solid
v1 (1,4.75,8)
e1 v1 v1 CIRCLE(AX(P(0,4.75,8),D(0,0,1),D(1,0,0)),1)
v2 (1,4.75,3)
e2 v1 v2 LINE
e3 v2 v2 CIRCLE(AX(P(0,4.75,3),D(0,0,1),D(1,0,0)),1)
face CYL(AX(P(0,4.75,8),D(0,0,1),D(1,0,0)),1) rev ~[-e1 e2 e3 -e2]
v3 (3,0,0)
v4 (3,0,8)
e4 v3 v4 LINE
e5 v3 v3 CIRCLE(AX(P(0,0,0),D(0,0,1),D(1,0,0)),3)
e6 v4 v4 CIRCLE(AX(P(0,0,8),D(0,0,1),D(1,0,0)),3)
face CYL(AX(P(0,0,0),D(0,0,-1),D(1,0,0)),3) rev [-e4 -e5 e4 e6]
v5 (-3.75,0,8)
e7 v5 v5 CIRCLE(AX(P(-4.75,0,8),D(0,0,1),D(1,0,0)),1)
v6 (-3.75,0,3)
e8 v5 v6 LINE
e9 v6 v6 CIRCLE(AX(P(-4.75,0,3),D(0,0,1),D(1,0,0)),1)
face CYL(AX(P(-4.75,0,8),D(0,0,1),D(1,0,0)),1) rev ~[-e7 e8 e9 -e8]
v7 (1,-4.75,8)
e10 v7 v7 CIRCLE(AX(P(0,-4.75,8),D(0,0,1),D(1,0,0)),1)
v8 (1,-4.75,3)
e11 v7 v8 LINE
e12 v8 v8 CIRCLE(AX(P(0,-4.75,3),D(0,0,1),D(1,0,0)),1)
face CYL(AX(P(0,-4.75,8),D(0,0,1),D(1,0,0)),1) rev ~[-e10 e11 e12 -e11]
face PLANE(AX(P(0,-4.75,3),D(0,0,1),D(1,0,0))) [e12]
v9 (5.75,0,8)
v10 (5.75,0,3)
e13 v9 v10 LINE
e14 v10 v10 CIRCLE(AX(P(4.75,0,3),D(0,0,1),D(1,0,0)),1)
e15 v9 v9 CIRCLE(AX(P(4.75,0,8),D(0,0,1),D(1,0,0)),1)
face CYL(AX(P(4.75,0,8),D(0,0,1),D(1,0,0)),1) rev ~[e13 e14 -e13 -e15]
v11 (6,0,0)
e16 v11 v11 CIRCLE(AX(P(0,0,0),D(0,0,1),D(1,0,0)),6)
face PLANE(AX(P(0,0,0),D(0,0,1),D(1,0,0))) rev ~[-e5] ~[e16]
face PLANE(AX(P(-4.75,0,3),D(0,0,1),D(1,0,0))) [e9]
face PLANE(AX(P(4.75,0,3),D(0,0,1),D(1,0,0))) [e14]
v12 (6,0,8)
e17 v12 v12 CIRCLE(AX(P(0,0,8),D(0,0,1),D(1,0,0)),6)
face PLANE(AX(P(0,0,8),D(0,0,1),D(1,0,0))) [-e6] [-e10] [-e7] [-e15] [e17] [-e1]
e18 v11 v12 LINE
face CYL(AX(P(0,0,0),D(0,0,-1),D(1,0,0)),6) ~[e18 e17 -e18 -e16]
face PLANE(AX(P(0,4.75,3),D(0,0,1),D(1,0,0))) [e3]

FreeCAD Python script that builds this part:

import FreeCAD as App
import Part
import Sketcher

V = App.Vector

doc = App.newDocument("Part")
params = doc.addObject("Spreadsheet::Sheet", "Params")
for row, (alias, value) in enumerate([
    ("sketch1_diameter", "12 mm"),
    ("sketch1_diameter2", "6 mm"),
    ("pad1_length", "8 mm"),
    ("sketch2_diameter", "2 mm"),
    ("pocket1_length", "5 mm"),
], start=1):
    params.set(f"A{row}", alias)
    params.set(f"B{row}", "=" + value)
    params.setAlias(f"B{row}", alias)

body = doc.addObject("PartDesign::Body", "Body")

# Sketch on XY plane
sketch1 = body.newObject("Sketcher::SketchObject", "Sketch")
sketch1.AttachmentSupport = (doc.getObject("XY_Plane"), [""])
sketch1.MapMode = "FlatFace"
sketch1.addGeometry([
    Part.Circle(V(0, 0, 0), V(0, 0, 1), 6),
    Part.Circle(V(0, 0, 0), V(0, 0, 1), 3),
], False)
sketch1.addConstraint([
    Sketcher.Constraint("Coincident", 0, 3, -1, 1),
    Sketcher.Constraint("Coincident", 1, 3, -1, 1),
    Sketcher.Constraint("Diameter", 0, 12.0),
    Sketcher.Constraint("Diameter", 1, 6.0),
])
sketch1.setExpression("Constraints[2]", "Params.sketch1_diameter")
sketch1.setExpression("Constraints[3]", "Params.sketch1_diameter2")
pad1 = body.newObject("PartDesign::Pad", "Pad")
pad1.Profile = sketch1
pad1.setExpression("Length", "Params.pad1_length")

# Sketch on XY plane
sketch2 = body.newObject("Sketcher::SketchObject", "Sketch001")
sketch2.AttachmentSupport = (doc.getObject("XY_Plane"), [""])
sketch2.MapMode = "FlatFace"
sketch2.AttachmentOffset = App.Placement(V(0, 0, 8), App.Rotation())
sketch2.addGeometry([
    Part.Circle(V(4.75, 0, 0), V(0, 0, 1), 1),
    Part.Circle(V(0, 4.75, 0), V(0, 0, 1), 1),
    Part.Circle(V(-4.75, 0, 0), V(0, 0, 1), 1),
    Part.Circle(V(0, -4.75, 0), V(0, 0, 1), 1),
], False)
sketch2.addConstraint([
    Sketcher.Constraint("Equal", 0, 1),
    Sketcher.Constraint("Equal", 1, 2),
    Sketcher.Constraint("Equal", 2, 3),
    Sketcher.Constraint("Symmetric", 0, 3, 2, 3, -1, 1),
    Sketcher.Constraint("Symmetric", 1, 3, 3, 3, -1, 1),
    Sketcher.Constraint("PointOnObject", 0, 3, -1),
    Sketcher.Constraint("PointOnObject", 1, 3, -2),
    Sketcher.Constraint("Diameter", 0, 2.0),
    Sketcher.Constraint("DistanceX", 2, 3, 0, 3, 9.5),
    Sketcher.Constraint("DistanceY", 3, 3, 1, 3, 9.5),
])
sketch2.setExpression("Constraints[7]", "Params.sketch2_diameter")
pocket1 = body.newObject("PartDesign::Pocket", "Pocket")
pocket1.Profile = sketch2
pocket1.setExpression("Length", "Params.pocket1_length")

doc.recompute()
